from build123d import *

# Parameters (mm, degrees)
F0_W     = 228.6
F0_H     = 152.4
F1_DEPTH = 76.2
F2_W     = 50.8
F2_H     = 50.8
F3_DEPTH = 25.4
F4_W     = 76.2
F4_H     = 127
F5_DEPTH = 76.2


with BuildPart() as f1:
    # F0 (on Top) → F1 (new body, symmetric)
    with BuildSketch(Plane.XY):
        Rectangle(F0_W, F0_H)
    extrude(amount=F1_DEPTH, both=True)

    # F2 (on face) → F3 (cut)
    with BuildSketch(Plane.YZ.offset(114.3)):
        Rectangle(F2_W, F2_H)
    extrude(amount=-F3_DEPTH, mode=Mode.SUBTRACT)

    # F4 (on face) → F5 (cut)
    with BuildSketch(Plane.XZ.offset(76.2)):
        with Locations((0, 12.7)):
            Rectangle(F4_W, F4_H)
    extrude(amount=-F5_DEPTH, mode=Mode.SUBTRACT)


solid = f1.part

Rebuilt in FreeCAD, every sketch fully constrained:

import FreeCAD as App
import Part
import Sketcher
from FreeCAD import Vector
Q = App.Units.Quantity


def add_polygon(sketch, points):
    """Adds a closed chain of lines whose ends are joined by coincident constraints."""
    first, n = sketch.GeometryCount, len(points)
    for a, b in zip(points, points[1:] + points[:1]):
        sketch.addGeometry(Part.LineSegment(App.Vector(*a, 0), App.Vector(*b, 0)), False)
    for i in range(n):
        sketch.addConstraint(Sketcher.Constraint("Coincident", first + i, 2, first + (i + 1) % n, 1))

doc = App.newDocument("Part")
body = doc.addObject("PartDesign::Body", "Body")

sketch1 = body.newObject("Sketcher::SketchObject", "Sketch")
sketch1.AttachmentSupport = (doc.getObject("XY_Plane"), [""])
sketch1.MapMode = "FlatFace"
add_polygon(sketch1, [(-114, 76), (-114, -76), (114, -76), (114, 76)])
sketch1.addConstraint(Sketcher.Constraint("Vertical", 0))
sketch1.addConstraint(Sketcher.Constraint("Horizontal", 1))
sketch1.addConstraint(Sketcher.Constraint("Vertical", 2))
sketch1.addConstraint(Sketcher.Constraint("Horizontal", 3))
sketch1.addConstraint(Sketcher.Constraint("Symmetric", 0, 2, 2, 2, -1, 1))
sketch1.addConstraint(Sketcher.Constraint("DistanceX", 1, 1, 1, 2, Q("9 in")))
sketch1.addConstraint(Sketcher.Constraint("DistanceY", 0, 2, 0, 1, Q("6 in")))
pad1 = body.newObject("PartDesign::Pad", "Pad")
pad1.Profile = sketch1
pad1.Length = Q("6 in")
pad1.Midplane = True

sketch2 = body.newObject("Sketcher::SketchObject", "Sketch001")
sketch2.AttachmentSupport = (doc.getObject("YZ_Plane"), [""])
sketch2.MapMode = "FlatFace"
sketch2.AttachmentOffset = App.Placement(Vector(0, 0, 4.5 * 25.4), App.Rotation())
add_polygon(sketch2, [(-25, 25), (-25, -25), (25, -25), (25, 25)])
sketch2.addConstraint(Sketcher.Constraint("Vertical", 0))
sketch2.addConstraint(Sketcher.Constraint("Horizontal", 1))
sketch2.addConstraint(Sketcher.Constraint("Vertical", 2))
sketch2.addConstraint(Sketcher.Constraint("Horizontal", 3))
sketch2.addConstraint(Sketcher.Constraint("Symmetric", 0, 2, 2, 2, -1, 1))
sketch2.addConstraint(Sketcher.Constraint("Equal", 3, 0))
sketch2.addConstraint(Sketcher.Constraint("DistanceX", 1, 1, 1, 2, Q("2 in")))
pocket1 = body.newObject("PartDesign::Pocket", "Pocket")
pocket1.Profile = sketch2
pocket1.Length = Q("1 in")

sketch3 = body.newObject("Sketcher::SketchObject", "Sketch002")
sketch3.AttachmentSupport = (doc.getObject("XZ_Plane"), [""])
sketch3.MapMode = "FlatFace"
sketch3.AttachmentOffset = App.Placement(Vector(0, 0, 3 * 25.4), App.Rotation())
add_polygon(sketch3, [(-38, 76), (-38, -51), (38, -51), (38, 76)])
sketch3.addConstraint(Sketcher.Constraint("Vertical", 0))
sketch3.addConstraint(Sketcher.Constraint("Horizontal", 1))
sketch3.addConstraint(Sketcher.Constraint("Vertical", 2))
sketch3.addConstraint(Sketcher.Constraint("Horizontal", 3))
sketch3.addConstraint(Sketcher.Constraint("DistanceX", 1, 1, 1, 2, Q("3 in")))
sketch3.addConstraint(Sketcher.Constraint("DistanceY", 0, 2, 0, 1, Q("5 in")))
sketch3.addConstraint(Sketcher.Constraint("DistanceY", 0, 2, -1, 1, Q("2 in")))
sketch3.addConstraint(Sketcher.Constraint("DistanceX", 0, 2, -1, 1, Q("1.5 in")))
pocket2 = body.newObject("PartDesign::Pocket", "Pocket001")
pocket2.Profile = sketch3
pocket2.Length = Q("3 in")

doc.recompute()
